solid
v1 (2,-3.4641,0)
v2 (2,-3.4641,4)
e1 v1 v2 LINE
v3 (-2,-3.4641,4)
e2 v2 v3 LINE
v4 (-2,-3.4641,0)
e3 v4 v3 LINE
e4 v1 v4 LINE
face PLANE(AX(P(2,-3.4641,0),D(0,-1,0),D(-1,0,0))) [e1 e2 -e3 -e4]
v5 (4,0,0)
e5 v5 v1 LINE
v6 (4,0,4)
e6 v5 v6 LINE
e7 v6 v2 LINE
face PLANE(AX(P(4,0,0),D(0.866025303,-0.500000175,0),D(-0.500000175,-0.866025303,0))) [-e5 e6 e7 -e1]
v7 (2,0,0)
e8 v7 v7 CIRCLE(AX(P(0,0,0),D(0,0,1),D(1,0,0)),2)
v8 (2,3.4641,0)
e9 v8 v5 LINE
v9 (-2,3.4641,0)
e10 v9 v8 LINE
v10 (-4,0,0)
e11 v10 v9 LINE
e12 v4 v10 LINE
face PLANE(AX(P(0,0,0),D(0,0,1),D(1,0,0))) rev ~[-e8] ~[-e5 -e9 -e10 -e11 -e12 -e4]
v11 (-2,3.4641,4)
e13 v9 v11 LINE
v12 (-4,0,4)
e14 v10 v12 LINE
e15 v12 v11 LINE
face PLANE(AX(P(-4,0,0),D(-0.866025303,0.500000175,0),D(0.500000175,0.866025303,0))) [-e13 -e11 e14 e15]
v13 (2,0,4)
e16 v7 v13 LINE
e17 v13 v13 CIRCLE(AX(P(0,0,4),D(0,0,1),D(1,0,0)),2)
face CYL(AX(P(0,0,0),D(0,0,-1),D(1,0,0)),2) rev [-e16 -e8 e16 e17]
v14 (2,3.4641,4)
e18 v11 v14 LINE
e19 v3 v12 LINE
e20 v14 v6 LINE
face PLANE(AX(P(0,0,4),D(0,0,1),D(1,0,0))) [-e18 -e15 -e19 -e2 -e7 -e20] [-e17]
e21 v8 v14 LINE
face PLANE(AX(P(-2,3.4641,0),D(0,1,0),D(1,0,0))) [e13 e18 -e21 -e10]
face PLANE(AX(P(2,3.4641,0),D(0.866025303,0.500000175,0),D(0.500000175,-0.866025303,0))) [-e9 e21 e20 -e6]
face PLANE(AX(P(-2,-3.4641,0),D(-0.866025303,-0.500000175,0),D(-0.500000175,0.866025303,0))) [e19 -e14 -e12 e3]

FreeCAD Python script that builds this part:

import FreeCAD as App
import Part
import Sketcher

V = App.Vector

doc = App.newDocument("Part")
params = doc.addObject("Spreadsheet::Sheet", "Params")
for row, (alias, value) in enumerate([
    ("sketch1_diameter", "4 mm"),
    ("sketch1_width", "4 mm"),
    ("sketch1_length", "4 mm"),
    ("pad1_length", "4 mm"),
], start=1):
    params.set(f"A{row}", alias)
    params.set(f"B{row}", "=" + value)
    params.setAlias(f"B{row}", alias)

body = doc.addObject("PartDesign::Body", "Body")

sketch1 = body.newObject("Sketcher::SketchObject", "Sketch")
sketch1.AttachmentSupport = (doc.getObject("XY_Plane"), [""])
sketch1.MapMode = "FlatFace"
sketch1.addGeometry([
    Part.LineSegment(V(2, -3.5, 0), V(4, 0, 0)),
    Part.LineSegment(V(4, 0, 0), V(2, 3.5, 0)),
    Part.LineSegment(V(2, 3.5, 0), V(-2, 3.5, 0)),
    Part.LineSegment(V(-2, 3.5, 0), V(-4, 0, 0)),
    Part.LineSegment(V(-4, 0, 0), V(-2, -3.5, 0)),
    Part.LineSegment(V(-2, -3.5, 0), V(2, -3.5, 0)),
    Part.Circle(V(0, 0, 0), V(0, 0, 1), 2),
], False)
sketch1.addConstraint([
    Sketcher.Constraint("Coincident", 0, 2, 1, 1),
    Sketcher.Constraint("Coincident", 1, 2, 2, 1),
    Sketcher.Constraint("Coincident", 2, 2, 3, 1),
    Sketcher.Constraint("Coincident", 3, 2, 4, 1),
    Sketcher.Constraint("Coincident", 4, 2, 5, 1),
    Sketcher.Constraint("Coincident", 5, 2, 0, 1),
    Sketcher.Constraint("Horizontal", 2),
    Sketcher.Constraint("Horizontal", 5),
    Sketcher.Constraint("Coincident", 6, 3, -1, 1),
    Sketcher.Constraint("Symmetric", 0, 2, 3, 2, -1, 1),
    Sketcher.Constraint("Symmetric", 1, 2, 4, 2, -1, 1),
    Sketcher.Constraint("PointOnObject", 0, 2, -1),
    Sketcher.Constraint("Parallel", 0, 3),
    Sketcher.Constraint("Vertical", 2, 2, 4, 2),
    Sketcher.Constraint("Diameter", 6, 4.0),
    Sketcher.Constraint("DistanceX", 2, 2, 2, 1, 4.0),
    Sketcher.Constraint("Distance", 0, 4.0),
    Sketcher.Constraint("DistanceX", -1, 1, 0, 2, 4.0),
])
sketch1.setExpression("Constraints[14]", "Params.sketch1_diameter")
sketch1.setExpression("Constraints[15]", "Params.sketch1_width")
sketch1.setExpression("Constraints[16]", "Params.sketch1_length")
pad1 = body.newObject("PartDesign::Pad", "Pad")
pad1.Profile = sketch1
pad1.setExpression("Length", "Params.pad1_length")

doc.recompute()
